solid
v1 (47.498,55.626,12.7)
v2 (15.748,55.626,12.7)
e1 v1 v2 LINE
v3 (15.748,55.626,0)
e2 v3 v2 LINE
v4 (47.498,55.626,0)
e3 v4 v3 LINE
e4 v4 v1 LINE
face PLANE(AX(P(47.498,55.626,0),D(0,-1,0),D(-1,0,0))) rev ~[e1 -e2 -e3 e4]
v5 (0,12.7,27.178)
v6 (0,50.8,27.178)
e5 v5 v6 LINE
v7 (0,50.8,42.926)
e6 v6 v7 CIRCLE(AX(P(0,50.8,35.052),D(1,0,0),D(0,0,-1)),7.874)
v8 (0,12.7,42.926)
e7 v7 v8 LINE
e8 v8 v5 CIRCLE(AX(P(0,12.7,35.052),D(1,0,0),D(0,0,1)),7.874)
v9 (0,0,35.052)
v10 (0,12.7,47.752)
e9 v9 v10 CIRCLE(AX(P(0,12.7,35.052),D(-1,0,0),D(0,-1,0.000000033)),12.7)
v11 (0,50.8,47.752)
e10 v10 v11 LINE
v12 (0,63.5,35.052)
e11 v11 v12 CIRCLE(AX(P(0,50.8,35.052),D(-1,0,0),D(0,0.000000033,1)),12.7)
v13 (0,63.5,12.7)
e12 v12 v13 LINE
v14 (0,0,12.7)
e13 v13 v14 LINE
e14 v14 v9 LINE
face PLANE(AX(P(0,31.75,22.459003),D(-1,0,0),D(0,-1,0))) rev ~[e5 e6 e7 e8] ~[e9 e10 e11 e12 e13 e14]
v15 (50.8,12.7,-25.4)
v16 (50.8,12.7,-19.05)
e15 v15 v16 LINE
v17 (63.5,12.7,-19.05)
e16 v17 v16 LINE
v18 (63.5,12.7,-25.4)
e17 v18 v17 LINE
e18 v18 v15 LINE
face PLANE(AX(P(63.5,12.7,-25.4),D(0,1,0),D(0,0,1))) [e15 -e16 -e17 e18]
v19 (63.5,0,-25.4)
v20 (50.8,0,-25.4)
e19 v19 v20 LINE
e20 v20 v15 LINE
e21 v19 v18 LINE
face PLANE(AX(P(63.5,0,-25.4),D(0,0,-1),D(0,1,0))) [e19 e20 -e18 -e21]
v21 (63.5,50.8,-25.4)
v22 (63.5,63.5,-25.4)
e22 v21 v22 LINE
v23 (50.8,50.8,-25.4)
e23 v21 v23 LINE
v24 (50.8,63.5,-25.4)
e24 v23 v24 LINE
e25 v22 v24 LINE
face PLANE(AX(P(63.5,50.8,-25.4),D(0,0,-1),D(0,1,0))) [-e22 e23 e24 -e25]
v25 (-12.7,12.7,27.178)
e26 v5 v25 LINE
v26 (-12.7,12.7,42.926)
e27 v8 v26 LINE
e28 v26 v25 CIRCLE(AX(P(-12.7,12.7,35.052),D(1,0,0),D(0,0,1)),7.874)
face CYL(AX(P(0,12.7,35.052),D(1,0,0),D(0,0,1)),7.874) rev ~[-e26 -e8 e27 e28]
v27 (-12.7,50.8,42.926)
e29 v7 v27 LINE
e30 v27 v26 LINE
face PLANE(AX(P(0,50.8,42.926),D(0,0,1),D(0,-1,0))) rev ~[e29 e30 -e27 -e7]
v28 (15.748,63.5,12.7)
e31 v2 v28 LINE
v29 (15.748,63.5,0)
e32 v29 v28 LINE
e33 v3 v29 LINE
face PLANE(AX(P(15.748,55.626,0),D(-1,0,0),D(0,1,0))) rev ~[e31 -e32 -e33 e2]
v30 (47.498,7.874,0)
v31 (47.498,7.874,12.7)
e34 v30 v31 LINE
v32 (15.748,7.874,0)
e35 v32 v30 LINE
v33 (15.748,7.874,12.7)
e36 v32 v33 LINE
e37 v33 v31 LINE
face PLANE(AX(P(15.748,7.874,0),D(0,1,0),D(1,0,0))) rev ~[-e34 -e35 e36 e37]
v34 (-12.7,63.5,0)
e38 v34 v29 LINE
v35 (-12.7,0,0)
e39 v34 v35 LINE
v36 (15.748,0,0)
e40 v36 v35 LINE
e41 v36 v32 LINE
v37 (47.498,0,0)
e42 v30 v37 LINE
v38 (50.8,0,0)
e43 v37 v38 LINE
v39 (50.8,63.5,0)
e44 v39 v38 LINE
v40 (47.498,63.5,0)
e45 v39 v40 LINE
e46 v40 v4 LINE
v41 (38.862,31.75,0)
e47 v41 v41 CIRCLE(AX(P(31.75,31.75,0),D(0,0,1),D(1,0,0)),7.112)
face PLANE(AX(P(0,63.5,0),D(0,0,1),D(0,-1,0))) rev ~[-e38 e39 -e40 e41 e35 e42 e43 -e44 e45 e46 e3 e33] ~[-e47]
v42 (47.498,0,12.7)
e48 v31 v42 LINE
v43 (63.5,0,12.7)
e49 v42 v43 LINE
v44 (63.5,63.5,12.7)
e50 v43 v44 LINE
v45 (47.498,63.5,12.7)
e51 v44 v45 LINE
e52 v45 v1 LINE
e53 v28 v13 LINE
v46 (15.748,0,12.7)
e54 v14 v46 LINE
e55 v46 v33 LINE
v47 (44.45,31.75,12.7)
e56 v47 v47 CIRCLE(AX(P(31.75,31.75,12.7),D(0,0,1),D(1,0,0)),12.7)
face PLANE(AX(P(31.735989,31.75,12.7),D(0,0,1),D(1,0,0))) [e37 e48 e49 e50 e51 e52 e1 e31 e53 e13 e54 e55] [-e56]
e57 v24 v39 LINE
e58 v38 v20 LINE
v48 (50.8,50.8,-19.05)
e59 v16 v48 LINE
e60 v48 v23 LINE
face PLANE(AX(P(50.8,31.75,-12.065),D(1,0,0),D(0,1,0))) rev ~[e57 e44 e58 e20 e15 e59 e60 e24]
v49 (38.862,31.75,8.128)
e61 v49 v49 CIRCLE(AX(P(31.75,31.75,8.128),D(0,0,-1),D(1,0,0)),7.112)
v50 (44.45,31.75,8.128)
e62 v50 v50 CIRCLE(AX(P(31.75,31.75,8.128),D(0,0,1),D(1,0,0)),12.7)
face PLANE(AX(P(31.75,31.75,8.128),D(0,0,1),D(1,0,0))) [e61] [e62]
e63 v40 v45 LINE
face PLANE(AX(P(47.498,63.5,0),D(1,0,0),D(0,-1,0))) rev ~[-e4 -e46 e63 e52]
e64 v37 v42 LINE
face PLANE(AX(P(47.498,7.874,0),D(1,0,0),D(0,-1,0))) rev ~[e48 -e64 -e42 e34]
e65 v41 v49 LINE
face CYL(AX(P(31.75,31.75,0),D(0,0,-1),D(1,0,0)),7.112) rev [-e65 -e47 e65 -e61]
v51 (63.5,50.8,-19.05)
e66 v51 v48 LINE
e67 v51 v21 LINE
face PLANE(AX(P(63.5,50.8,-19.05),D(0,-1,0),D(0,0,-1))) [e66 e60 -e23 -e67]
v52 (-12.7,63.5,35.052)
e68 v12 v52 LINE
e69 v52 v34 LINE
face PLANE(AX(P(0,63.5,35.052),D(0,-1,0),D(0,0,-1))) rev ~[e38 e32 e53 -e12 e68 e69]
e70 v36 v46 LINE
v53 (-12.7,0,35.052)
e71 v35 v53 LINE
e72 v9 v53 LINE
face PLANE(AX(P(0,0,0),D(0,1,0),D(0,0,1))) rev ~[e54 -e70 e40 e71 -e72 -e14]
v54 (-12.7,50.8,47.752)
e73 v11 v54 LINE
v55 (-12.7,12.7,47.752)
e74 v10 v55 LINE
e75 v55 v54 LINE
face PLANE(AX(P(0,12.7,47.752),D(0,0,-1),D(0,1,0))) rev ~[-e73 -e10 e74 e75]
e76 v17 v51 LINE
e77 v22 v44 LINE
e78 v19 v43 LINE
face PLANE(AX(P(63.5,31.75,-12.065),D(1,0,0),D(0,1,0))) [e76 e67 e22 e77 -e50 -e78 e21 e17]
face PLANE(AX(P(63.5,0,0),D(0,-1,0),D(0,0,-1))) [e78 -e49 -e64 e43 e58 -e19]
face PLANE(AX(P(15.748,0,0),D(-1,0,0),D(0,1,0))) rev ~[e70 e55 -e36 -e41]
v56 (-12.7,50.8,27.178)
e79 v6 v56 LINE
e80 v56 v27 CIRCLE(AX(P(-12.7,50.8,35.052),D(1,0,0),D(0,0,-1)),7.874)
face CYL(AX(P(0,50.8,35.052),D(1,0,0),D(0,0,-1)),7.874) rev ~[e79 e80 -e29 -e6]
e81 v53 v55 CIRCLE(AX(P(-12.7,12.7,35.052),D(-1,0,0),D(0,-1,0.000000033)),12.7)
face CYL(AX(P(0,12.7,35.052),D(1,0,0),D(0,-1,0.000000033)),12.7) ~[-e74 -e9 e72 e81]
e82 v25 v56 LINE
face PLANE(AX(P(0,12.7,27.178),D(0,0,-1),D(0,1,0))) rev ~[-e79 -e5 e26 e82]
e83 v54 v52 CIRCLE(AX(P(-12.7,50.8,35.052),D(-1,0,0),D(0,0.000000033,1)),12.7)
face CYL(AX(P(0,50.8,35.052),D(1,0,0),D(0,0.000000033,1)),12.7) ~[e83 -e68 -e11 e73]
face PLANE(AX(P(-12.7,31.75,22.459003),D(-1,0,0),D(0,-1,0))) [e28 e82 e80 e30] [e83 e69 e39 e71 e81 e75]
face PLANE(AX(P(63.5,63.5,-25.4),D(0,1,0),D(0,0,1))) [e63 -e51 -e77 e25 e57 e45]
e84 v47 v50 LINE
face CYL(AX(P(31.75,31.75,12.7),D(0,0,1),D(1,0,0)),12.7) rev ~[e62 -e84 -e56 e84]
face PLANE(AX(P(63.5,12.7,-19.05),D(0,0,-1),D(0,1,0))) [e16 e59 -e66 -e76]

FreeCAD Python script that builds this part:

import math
import FreeCAD as App
import Part
import Sketcher

V = App.Vector
Q = App.Units.Quantity


def add_polygon(sketch, points):
    """Adds a closed chain of lines whose ends are joined by coincident constraints."""
    first, n = sketch.GeometryCount, len(points)
    for a, b in zip(points, points[1:] + points[:1]):
        sketch.addGeometry(Part.LineSegment(App.Vector(*a, 0), App.Vector(*b, 0)), False)
    for i in range(n):
        sketch.addConstraint(Sketcher.Constraint("Coincident", first + i, 2, first + (i + 1) % n, 1))

doc = App.newDocument("Part")
params = doc.addObject("Spreadsheet::Sheet", "Params")
for row, (alias, value) in enumerate([
    ("sketch1_diameter", "0.56 in"),
    ("sketch1_height", "2.5 in"),
    ("sketch1_width", "0.62 in"),
    ("sketch1_width2", "1.25 in"),
    ("sketch1_width3", "0.63 in"),
    ("pad1_length", "0.5 in"),
    ("sketch2_height", "1 in"),
    ("sketch2_width", "0.5 in"),
    ("sketch2_width2", "1.5 in"),
    ("sketch2_height2", "0.25 in"),
    ("pad2_length", "0.5 in"),
    ("sketch3_diameter", "1 in"),
    ("pocket1_length", "0.18 in"),
    ("sketch4_radius", "0.5 in"),
    ("sketch4_radius2", "0.31 in"),
    ("sketch4_width", "2.5 in"),
    ("sketch4_height", "1.38 in"),
    ("pad3_length", "0.5 in"),
], start=1):
    params.set(f"A{row}", alias)
    params.set(f"B{row}", "=" + value)
    params.setAlias(f"B{row}", alias)

body = doc.addObject("PartDesign::Body", "Body")

# Sketch on XY plane
sketch1 = body.newObject("Sketcher::SketchObject", "Sketch")
sketch1.AttachmentSupport = (doc.getObject("XY_Plane"), [""])
sketch1.MapMode = "FlatFace"
add_polygon(sketch1, [(0, 64), (0, 0), (16, 0), (16, 8), (47, 8), (47, 0), (64, 0), (64, 64), (47, 64), (47, 56), (16, 56), (16, 64)])  # lines 0-11
sketch1.addGeometry(Part.Circle(V(32, 32, 0), V(0, 0, 1), 7), False)  # 12
sketch1.addConstraint([
    Sketcher.Constraint("Vertical", 0),
    Sketcher.Constraint("Horizontal", 1),
    Sketcher.Constraint("Vertical", 2),
    Sketcher.Constraint("Horizontal", 3),
    Sketcher.Constraint("Vertical", 4),
    Sketcher.Constraint("Horizontal", 5),
    Sketcher.Constraint("Vertical", 6),
    Sketcher.Constraint("Horizontal", 7),
    Sketcher.Constraint("Vertical", 8),
    Sketcher.Constraint("Horizontal", 9),
    Sketcher.Constraint("Vertical", 10),
    Sketcher.Constraint("Horizontal", 11),
    Sketcher.Constraint("Coincident", 0, 2, -1, 1),
    Sketcher.Constraint("PointOnObject", 4, 2, -1),
    Sketcher.Constraint("Horizontal", 7, 2, 10, 2),
    Sketcher.Constraint("Vertical", 4, 2, 7, 2),
    Sketcher.Constraint("Vertical", 2, 2, 9, 2),
    Sketcher.Constraint("Equal", 4, 8),
    Sketcher.Constraint("Diameter", 12, Q("0.56 in")),
    Sketcher.Constraint("DistanceY", 0, 2, 0, 1, Q("2.5 in")),
    Sketcher.Constraint("DistanceX", 1, 1, 1, 2, Q("0.62 in")),
    Sketcher.Constraint("DistanceX", 3, 1, 3, 2, Q("1.25 in")),
    Sketcher.Constraint("DistanceX", 5, 1, 5, 2, Q("0.63 in")),
    Sketcher.Constraint("DistanceY", 2, 1, 2, 2, Q("0.31 in")),
    Sketcher.Constraint("DistanceX", -1, 1, 12, 3, Q("1.25 in")),
    Sketcher.Constraint("DistanceY", -1, 1, 12, 3, Q("1.25 in")),
])
sketch1.setExpression("Constraints[30]", "Params.sketch1_diameter")
sketch1.setExpression("Constraints[31]", "Params.sketch1_height")
sketch1.setExpression("Constraints[32]", "Params.sketch1_width")
sketch1.setExpression("Constraints[33]", "Params.sketch1_width2")
sketch1.setExpression("Constraints[34]", "Params.sketch1_width3")
pad1 = body.newObject("PartDesign::Pad", "Pad")
pad1.Profile = sketch1
pad1.setExpression("Length", "Params.pad1_length")

# Sketch on YZ plane
sketch2 = body.newObject("Sketcher::SketchObject", "Sketch001")
sketch2.AttachmentSupport = (doc.getObject("YZ_Plane"), [""])
sketch2.MapMode = "FlatFace"
sketch2.AttachmentOffset = App.Placement(V(0, 0, 2.5 * 25.4), App.Rotation())
add_polygon(sketch2, [(0, -25), (13, -25), (13, -19), (51, -19), (51, -25), (64, -25), (64, 0), (0, 0)])  # lines 0-7
sketch2.addConstraint([
    Sketcher.Constraint("Horizontal", 0),
    Sketcher.Constraint("Vertical", 1),
    Sketcher.Constraint("Horizontal", 2),
    Sketcher.Constraint("Vertical", 3),
    Sketcher.Constraint("Horizontal", 4),
    Sketcher.Constraint("Vertical", 5),
    Sketcher.Constraint("Horizontal", 6),
    Sketcher.Constraint("Vertical", 7),
    Sketcher.Constraint("Coincident", 6, 2, -1, 1),
    Sketcher.Constraint("Horizontal", 0, 2, 3, 2),
    Sketcher.Constraint("Equal", 0, 4),
    Sketcher.Constraint("DistanceY", 5, 1, 5, 2, Q("1 in")),
    Sketcher.Constraint("DistanceX", 0, 1, 0, 2, Q("0.5 in")),
    Sketcher.Constraint("DistanceX", 2, 1, 2, 2, Q("1.5 in")),
    Sketcher.Constraint("DistanceY", 1, 1, 1, 2, Q("0.25 in")),
])
sketch2.setExpression("Constraints[19]", "Params.sketch2_height")
sketch2.setExpression("Constraints[20]", "Params.sketch2_width")
sketch2.setExpression("Constraints[21]", "Params.sketch2_width2")
sketch2.setExpression("Constraints[22]", "Params.sketch2_height2")
pad2 = body.newObject("PartDesign::Pad", "Pad001")
pad2.Profile = sketch2
pad2.setExpression("Length", "Params.pad2_length")
pad2.Reversed = True

# Sketch on XY plane
sketch3 = body.newObject("Sketcher::SketchObject", "Sketch002")
sketch3.AttachmentSupport = (doc.getObject("XY_Plane"), [""])
sketch3.MapMode = "FlatFace"
sketch3.AttachmentOffset = App.Placement(V(0, 0, 0.5 * 25.4), App.Rotation())
sketch3.addGeometry(Part.Circle(V(32, 32, 0), V(0, 0, 1), 13), False)
sketch3.addConstraint([
    Sketcher.Constraint("Diameter", 0, Q("1 in")),
    Sketcher.Constraint("DistanceX", -1, 1, 0, 3, Q("1.25 in")),
    Sketcher.Constraint("DistanceY", -1, 1, 0, 3, Q("1.25 in")),
])
sketch3.setExpression("Constraints[0]", "Params.sketch3_diameter")
pocket1 = body.newObject("PartDesign::Pocket", "Pocket")
pocket1.Profile = sketch3
pocket1.setExpression("Length", "Params.pocket1_length")

# Sketch on YZ plane
sketch4 = body.newObject("Sketcher::SketchObject", "Sketch003")
sketch4.AttachmentSupport = (doc.getObject("YZ_Plane"), [""])
sketch4.MapMode = "FlatFace"
sketch4.addGeometry([
    Part.LineSegment(V(64, 0, 0), V(0, 0, 0)),  # 0
    Part.LineSegment(V(0, 0, 0), V(0, 35, 0)),  # 1
    Part.ArcOfCircle(Part.Circle(V(13, 35, 0), V(0, 0, 1), 13), math.radians(90), math.radians(180)),  # 2
    Part.LineSegment(V(13, 48, 0), V(51, 48, 0)),  # 3
    Part.ArcOfCircle(Part.Circle(V(51, 35, 0), V(0, 0, 1), 13), math.radians(0), math.radians(90)),  # 4
    Part.LineSegment(V(64, 35, 0), V(64, 0, 0)),  # 5
    Part.LineSegment(V(13, 27, 0), V(51, 27, 0)),  # 6
    Part.ArcOfCircle(Part.Circle(V(51, 35, 0), V(0, 0, 1), 8), math.radians(-90), math.radians(90)),  # 7
    Part.LineSegment(V(51, 43, 0), V(13, 43, 0)),  # 8
    Part.ArcOfCircle(Part.Circle(V(13, 35, 0), V(0, 0, 1), 8), math.radians(90), math.radians(270)),  # 9
], False)
sketch4.addConstraint([
    Sketcher.Constraint("Coincident", 0, 2, 1, 1),
    Sketcher.Constraint("Tangent", 1, 2, 2, 2),
    Sketcher.Constraint("Tangent", 2, 1, 3, 1),
    Sketcher.Constraint("Tangent", 3, 2, 4, 2),
    Sketcher.Constraint("Tangent", 4, 1, 5, 1),
    Sketcher.Constraint("Coincident", 5, 2, 0, 1),
    Sketcher.Constraint("Tangent", 6, 2, 7, 1),
    Sketcher.Constraint("Tangent", 7, 2, 8, 1),
    Sketcher.Constraint("Tangent", 8, 2, 9, 1),
    Sketcher.Constraint("Tangent", 9, 2, 6, 1),
    Sketcher.Constraint("Horizontal", 0),
    Sketcher.Constraint("Vertical", 1),
    Sketcher.Constraint("Horizontal", 3),
    Sketcher.Constraint("Vertical", 5),
    Sketcher.Constraint("Horizontal", 6),
    Sketcher.Constraint("Horizontal", 8),
    Sketcher.Constraint("Coincident", 0, 2, -1, 1),
    Sketcher.Constraint("Coincident", 7, 3, 4, 3),
    Sketcher.Constraint("Coincident", 9, 3, 2, 3),
    Sketcher.Constraint("Radius", 2, Q("0.5 in")),
    Sketcher.Constraint("Radius", 7, Q("0.31 in")),
    Sketcher.Constraint("DistanceX", 0, 2, 0, 1, Q("2.5 in")),
    Sketcher.Constraint("DistanceY", 1, 1, 1, 2, Q("1.38 in")),
])
sketch4.setExpression("Constraints[19]", "Params.sketch4_radius")
sketch4.setExpression("Constraints[20]", "Params.sketch4_radius2")
sketch4.setExpression("Constraints[21]", "Params.sketch4_width")
sketch4.setExpression("Constraints[22]", "Params.sketch4_height")
pad3 = body.newObject("PartDesign::Pad", "Pad002")
pad3.Profile = sketch4
pad3.setExpression("Length", "Params.pad3_length")
pad3.Reversed = True

doc.recompute()
